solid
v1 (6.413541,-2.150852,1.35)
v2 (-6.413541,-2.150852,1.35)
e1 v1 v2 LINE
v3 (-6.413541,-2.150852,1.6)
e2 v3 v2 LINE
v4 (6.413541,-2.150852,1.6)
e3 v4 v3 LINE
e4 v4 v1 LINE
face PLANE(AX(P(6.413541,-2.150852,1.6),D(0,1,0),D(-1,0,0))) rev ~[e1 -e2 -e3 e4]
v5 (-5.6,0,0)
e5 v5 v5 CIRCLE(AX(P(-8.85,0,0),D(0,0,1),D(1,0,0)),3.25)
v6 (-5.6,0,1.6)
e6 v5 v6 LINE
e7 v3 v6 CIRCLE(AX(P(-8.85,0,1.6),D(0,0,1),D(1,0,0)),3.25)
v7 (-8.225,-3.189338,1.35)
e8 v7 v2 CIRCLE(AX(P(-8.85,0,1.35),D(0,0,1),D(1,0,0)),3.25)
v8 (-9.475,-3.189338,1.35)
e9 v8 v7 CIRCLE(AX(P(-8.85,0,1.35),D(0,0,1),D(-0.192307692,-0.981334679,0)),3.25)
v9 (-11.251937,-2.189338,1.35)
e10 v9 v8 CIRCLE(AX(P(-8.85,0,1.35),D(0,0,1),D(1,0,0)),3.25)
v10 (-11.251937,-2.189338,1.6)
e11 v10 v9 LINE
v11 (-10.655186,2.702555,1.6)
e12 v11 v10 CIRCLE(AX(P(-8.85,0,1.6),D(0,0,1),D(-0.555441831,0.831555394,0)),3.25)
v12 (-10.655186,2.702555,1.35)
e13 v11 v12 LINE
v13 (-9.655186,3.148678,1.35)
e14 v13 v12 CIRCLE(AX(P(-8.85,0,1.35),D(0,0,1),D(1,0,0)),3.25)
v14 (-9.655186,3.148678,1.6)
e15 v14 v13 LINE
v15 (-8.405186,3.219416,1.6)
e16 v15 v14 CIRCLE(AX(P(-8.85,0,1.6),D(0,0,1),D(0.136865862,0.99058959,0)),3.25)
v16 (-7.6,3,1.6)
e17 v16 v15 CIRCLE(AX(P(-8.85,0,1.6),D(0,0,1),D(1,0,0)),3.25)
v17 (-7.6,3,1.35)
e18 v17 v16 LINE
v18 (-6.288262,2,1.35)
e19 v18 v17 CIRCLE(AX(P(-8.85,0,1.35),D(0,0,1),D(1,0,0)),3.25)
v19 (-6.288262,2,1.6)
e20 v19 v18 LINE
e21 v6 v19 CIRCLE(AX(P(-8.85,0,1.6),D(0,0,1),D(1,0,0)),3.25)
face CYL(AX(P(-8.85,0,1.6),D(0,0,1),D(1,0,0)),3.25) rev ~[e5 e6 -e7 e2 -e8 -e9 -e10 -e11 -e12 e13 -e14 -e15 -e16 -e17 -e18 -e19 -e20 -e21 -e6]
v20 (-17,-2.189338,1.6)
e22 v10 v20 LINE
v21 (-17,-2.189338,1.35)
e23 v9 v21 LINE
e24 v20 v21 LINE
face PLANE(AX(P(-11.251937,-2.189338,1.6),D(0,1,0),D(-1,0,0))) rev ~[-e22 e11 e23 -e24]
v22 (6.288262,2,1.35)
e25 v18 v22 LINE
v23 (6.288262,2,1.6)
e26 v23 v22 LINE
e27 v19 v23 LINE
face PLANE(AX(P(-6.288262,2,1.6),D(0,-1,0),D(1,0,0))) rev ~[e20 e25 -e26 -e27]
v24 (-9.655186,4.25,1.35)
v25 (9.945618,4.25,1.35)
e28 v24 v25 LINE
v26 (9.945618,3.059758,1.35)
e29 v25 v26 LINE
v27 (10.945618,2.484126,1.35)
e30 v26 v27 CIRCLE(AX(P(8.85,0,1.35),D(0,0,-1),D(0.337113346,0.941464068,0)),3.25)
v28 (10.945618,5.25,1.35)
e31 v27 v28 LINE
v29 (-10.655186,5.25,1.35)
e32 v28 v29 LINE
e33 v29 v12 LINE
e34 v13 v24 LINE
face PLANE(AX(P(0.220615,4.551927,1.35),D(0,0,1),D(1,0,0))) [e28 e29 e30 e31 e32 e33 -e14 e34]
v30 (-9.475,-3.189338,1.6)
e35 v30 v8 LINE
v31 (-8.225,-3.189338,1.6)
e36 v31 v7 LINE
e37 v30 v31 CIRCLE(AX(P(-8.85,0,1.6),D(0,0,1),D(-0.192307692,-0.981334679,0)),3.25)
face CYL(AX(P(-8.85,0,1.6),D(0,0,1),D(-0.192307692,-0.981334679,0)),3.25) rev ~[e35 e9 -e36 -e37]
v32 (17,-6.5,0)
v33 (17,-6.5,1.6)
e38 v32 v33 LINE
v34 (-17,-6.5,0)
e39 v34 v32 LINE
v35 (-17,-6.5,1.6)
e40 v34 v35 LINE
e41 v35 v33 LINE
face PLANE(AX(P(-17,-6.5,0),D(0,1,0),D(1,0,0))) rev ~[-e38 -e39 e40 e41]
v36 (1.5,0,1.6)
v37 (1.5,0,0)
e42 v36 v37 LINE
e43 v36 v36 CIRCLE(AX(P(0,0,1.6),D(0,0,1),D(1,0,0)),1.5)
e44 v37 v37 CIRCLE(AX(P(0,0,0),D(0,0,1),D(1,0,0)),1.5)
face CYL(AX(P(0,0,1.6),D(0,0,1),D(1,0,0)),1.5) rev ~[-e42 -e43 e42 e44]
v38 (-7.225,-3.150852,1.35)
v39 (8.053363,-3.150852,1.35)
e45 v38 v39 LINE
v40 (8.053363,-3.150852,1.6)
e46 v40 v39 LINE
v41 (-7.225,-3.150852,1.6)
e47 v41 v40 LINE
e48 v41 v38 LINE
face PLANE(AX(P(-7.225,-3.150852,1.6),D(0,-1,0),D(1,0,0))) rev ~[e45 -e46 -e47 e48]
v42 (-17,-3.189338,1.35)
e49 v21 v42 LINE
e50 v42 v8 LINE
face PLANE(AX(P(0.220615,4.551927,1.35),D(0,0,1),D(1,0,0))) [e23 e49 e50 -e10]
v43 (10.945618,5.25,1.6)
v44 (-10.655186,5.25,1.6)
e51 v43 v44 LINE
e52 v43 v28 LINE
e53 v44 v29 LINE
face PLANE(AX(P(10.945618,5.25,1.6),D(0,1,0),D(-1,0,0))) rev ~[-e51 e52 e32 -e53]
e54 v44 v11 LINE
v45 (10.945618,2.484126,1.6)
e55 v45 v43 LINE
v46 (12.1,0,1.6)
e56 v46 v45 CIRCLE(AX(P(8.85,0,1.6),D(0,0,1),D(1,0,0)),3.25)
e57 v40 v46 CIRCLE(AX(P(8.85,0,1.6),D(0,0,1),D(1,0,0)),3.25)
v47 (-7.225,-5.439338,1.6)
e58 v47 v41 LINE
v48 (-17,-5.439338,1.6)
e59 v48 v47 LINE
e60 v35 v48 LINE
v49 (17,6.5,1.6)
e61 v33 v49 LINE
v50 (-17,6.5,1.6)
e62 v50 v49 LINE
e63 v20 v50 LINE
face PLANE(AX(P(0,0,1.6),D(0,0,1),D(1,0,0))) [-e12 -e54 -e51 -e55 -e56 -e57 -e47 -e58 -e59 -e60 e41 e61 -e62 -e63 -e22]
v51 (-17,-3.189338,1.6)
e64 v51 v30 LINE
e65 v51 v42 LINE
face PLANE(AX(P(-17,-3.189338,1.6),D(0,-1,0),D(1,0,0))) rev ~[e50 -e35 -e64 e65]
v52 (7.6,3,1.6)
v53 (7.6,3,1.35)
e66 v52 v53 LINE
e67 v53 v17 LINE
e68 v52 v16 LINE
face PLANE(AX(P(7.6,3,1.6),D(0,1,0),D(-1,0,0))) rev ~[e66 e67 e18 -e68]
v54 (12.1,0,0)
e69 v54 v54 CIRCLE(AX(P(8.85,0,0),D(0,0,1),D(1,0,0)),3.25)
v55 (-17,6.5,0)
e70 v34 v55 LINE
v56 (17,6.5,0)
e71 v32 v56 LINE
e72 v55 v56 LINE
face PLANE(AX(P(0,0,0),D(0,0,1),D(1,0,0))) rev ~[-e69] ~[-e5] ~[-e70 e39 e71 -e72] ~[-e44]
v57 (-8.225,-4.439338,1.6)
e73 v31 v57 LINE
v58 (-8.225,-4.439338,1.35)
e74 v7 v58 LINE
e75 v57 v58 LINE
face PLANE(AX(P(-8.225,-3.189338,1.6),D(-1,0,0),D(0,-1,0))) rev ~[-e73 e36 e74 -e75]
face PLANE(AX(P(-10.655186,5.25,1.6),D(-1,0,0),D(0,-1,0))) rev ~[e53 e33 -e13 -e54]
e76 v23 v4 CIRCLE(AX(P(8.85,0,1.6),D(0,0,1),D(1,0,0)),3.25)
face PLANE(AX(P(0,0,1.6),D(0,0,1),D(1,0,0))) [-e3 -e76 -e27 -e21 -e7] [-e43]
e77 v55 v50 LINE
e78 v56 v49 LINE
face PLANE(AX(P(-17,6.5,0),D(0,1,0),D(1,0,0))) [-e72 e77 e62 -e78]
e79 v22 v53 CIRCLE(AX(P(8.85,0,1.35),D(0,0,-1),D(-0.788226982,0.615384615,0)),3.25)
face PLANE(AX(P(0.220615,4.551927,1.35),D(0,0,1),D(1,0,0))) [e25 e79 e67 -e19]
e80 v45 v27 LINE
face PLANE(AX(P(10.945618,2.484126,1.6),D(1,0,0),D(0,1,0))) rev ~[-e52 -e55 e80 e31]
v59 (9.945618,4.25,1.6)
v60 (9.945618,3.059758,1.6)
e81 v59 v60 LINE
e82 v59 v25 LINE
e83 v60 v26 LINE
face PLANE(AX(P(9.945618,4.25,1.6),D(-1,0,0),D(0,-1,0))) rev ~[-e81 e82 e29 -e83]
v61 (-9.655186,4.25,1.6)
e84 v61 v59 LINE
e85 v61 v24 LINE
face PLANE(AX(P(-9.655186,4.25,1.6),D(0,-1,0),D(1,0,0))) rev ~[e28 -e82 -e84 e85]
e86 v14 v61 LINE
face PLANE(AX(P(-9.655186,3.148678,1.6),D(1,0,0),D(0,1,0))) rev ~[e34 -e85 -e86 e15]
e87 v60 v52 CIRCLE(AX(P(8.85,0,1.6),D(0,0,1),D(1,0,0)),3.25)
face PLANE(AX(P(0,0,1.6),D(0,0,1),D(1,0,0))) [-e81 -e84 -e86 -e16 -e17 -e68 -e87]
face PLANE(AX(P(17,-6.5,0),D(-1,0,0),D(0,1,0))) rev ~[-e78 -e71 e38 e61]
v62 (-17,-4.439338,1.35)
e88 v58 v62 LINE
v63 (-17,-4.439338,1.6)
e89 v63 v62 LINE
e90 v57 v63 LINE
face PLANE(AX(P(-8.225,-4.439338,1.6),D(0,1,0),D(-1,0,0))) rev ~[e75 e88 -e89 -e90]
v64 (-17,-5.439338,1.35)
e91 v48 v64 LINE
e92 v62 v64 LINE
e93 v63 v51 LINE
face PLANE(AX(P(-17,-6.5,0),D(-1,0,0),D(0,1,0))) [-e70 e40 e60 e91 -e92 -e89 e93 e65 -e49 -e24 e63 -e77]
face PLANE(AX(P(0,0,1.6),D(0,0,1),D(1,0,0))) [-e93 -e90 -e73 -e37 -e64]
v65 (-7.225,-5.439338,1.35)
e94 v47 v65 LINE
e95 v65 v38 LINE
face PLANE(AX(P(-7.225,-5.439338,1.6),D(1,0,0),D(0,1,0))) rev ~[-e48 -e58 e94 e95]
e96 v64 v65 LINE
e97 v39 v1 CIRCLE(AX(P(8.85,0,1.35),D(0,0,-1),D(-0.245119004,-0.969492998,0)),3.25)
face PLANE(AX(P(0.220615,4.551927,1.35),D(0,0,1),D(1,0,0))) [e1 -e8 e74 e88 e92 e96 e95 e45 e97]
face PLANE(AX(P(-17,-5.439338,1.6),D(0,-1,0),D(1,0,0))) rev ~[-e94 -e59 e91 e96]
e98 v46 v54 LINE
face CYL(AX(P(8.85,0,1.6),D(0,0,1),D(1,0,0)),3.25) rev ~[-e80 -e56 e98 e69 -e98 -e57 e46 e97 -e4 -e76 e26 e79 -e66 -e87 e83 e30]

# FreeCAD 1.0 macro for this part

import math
import FreeCAD as App
import Part
import Sketcher
from FreeCAD import Vector
Q = App.Units.Quantity


def add_polygon(sketch, points):
    """Adds a closed chain of lines whose ends are joined by coincident constraints."""
    first, n = sketch.GeometryCount, len(points)
    for a, b in zip(points, points[1:] + points[:1]):
        sketch.addGeometry(Part.LineSegment(App.Vector(*a, 0), App.Vector(*b, 0)), False)
    for i in range(n):
        sketch.addConstraint(Sketcher.Constraint("Coincident", first + i, 2, first + (i + 1) % n, 1))

doc = App.newDocument("Part")
body = doc.addObject("PartDesign::Body", "Body")

sketch1 = doc.addObject("Sketcher::SketchObject", "Sketch")
body.addObject(sketch1)
sketch1.AttachmentSupport = (doc.XY_Plane, [""])
sketch1.MapMode = "FlatFace"
add_polygon(sketch1, [(-17, 6), (-17, -6), (17, -6), (17, 6)])
sketch1.addConstraint(Sketcher.Constraint("Vertical", 0))
sketch1.addConstraint(Sketcher.Constraint("Horizontal", 1))
sketch1.addConstraint(Sketcher.Constraint("Vertical", 2))
sketch1.addConstraint(Sketcher.Constraint("Horizontal", 3))
sketch1.addConstraint(Sketcher.Constraint("Symmetric", 0, 2, 2, 2, -1, 1))
sketch1.addConstraint(Sketcher.Constraint("DistanceX", 1, 1, 1, 2, Q("34 mm")))
sketch1.addConstraint(Sketcher.Constraint("DistanceY", 0, 2, 0, 1, Q("13 mm")))
pad1 = doc.addObject("PartDesign::Pad", "Pad")
body.addObject(pad1)
pad1.Profile = sketch1
pad1.Length = 1.6

sketch2 = doc.addObject("Sketcher::SketchObject", "Sketch001")
body.addObject(sketch2)
sketch2.AttachmentSupport = (doc.XY_Plane, [""])
sketch2.MapMode = "FlatFace"
sketch2.AttachmentOffset = App.Placement(Vector(0, 0, 1.6), App.Rotation())
sketch2.addGeometry(Part.Circle(Vector(-8.8, 0, 0), Vector(0, 0, 1), 3.2), False)
sketch2.addGeometry(Part.Circle(Vector(8.8, 0, 0), Vector(0, 0, 1), 3.2), False)
sketch2.addConstraint(Sketcher.Constraint("Equal", 0, 1))
sketch2.addConstraint(Sketcher.Constraint("Symmetric", 0, 3, 1, 3, -1, 1))
sketch2.addConstraint(Sketcher.Constraint("PointOnObject", 0, 3, -1))
sketch2.addConstraint(Sketcher.Constraint("Diameter", 0, Q("6.5 mm")))
sketch2.addConstraint(Sketcher.Constraint("DistanceX", 0, 3, 1, 3, Q("17.7 mm")))
pocket1 = doc.addObject("PartDesign::Pocket", "Pocket")
body.addObject(pocket1)
pocket1.Profile = sketch2
pocket1.Type = "ThroughAll"

sketch3 = doc.addObject("Sketcher::SketchObject", "Sketch002")
body.addObject(sketch3)
sketch3.AttachmentSupport = (doc.XY_Plane, [""])
sketch3.MapMode = "FlatFace"
sketch3.AttachmentOffset = App.Placement(Vector(0, 0, 1.6), App.Rotation())
sketch3.addGeometry(Part.Circle(Vector(0, 0, 0), Vector(0, 0, 1), 1.5), False)
sketch3.addConstraint(Sketcher.Constraint("Coincident", 0, 3, -1, 1))
sketch3.addConstraint(Sketcher.Constraint("Diameter", 0, Q("3 mm")))
pocket2 = doc.addObject("PartDesign::Pocket", "Pocket001")
body.addObject(pocket2)
pocket2.Profile = sketch3
pocket2.Type = "ThroughAll"

sketch4 = doc.addObject("Sketcher::SketchObject", "Sketch003")
body.addObject(sketch4)
sketch4.AttachmentSupport = (doc.XY_Plane, [""])
sketch4.MapMode = "FlatFace"
sketch4.AttachmentOffset = App.Placement(Vector(0, 0, 1.6), App.Rotation())
sketch4.addGeometry(Part.LineSegment(Vector(-9.66, 3.15, 0), Vector(-9.66, 4.25, 0)), False)
sketch4.addGeometry(Part.LineSegment(Vector(-9.66, 4.25, 0), Vector(9.95, 4.25, 0)), False)
sketch4.addGeometry(Part.LineSegment(Vector(9.95, 4.25, 0), Vector(9.95, 3.06, 0)), False)
sketch4.addGeometry(Part.ArcOfCircle(Part.Circle(Vector(8.85, 0, 0), Vector(0, 0, 1), 3.25), math.radians(50), math.radians(70)), False)
sketch4.addGeometry(Part.LineSegment(Vector(10.95, 2.48, 0), Vector(10.95, 5.25, 0)), False)
sketch4.addGeometry(Part.LineSegment(Vector(10.95, 5.25, 0), Vector(-10.66, 5.25, 0)), False)
sketch4.addGeometry(Part.LineSegment(Vector(-10.66, 5.25, 0), Vector(-10.66, 2.7, 0)), False)
sketch4.addGeometry(Part.ArcOfCircle(Part.Circle(Vector(-8.85, 0, 0), Vector(0, 0, 1), 3.25), math.radians(124), math.radians(222)), False)
sketch4.addGeometry(Part.LineSegment(Vector(-11.25, -2.19, 0), Vector(-17, -2.19, 0)), False)
sketch4.addGeometry(Part.LineSegment(Vector(-17, -2.19, 0), Vector(-17, -3.19, 0)), False)
sketch4.addGeometry(Part.LineSegment(Vector(-17, -3.19, 0), Vector(-9.47, -3.19, 0)), False)
sketch4.addGeometry(Part.ArcOfCircle(Part.Circle(Vector(-8.85, 0, 0), Vector(0, 0, 1), 3.25), math.radians(-101), math.radians(-79)), False)
sketch4.addGeometry(Part.LineSegment(Vector(-8.22, -3.19, 0), Vector(-8.22, -4.44, 0)), False)
sketch4.addGeometry(Part.LineSegment(Vector(-8.22, -4.44, 0), Vector(-17, -4.44, 0)), False)
sketch4.addGeometry(Part.LineSegment(Vector(-17, -4.44, 0), Vector(-17, -5.44, 0)), False)
sketch4.addGeometry(Part.LineSegment(Vector(-17, -5.44, 0), Vector(-7.22, -5.44, 0)), False)
sketch4.addGeometry(Part.LineSegment(Vector(-7.22, -5.44, 0), Vector(-7.22, -3.15, 0)), False)
sketch4.addGeometry(Part.LineSegment(Vector(-7.22, -3.15, 0), Vector(8.05, -3.15, 0)), False)
sketch4.addGeometry(Part.ArcOfCircle(Part.Circle(Vector(8.85, 0, 0), Vector(0, 0, 1), 3.25), math.radians(-139), math.radians(-104)), False)
sketch4.addGeometry(Part.LineSegment(Vector(6.41, -2.15, 0), Vector(-6.41, -2.15, 0)), False)
sketch4.addGeometry(Part.ArcOfCircle(Part.Circle(Vector(-8.85, 0, 0), Vector(0, 0, 1), 3.25), math.radians(-41), math.radians(0)), False)
sketch4.addGeometry(Part.ArcOfCircle(Part.Circle(Vector(-8.85, 0, 0), Vector(0, 0, 1), 3.25), math.radians(0), math.radians(38)), False)
sketch4.addGeometry(Part.LineSegment(Vector(-6.29, 2, 0), Vector(6.29, 2, 0)), False)
sketch4.addGeometry(Part.ArcOfCircle(Part.Circle(Vector(8.85, 0, 0), Vector(0, 0, 1), 3.25), math.radians(113), math.radians(142)), False)
sketch4.addGeometry(Part.LineSegment(Vector(7.6, 3, 0), Vector(-8.41, 3, 0)), False)
sketch4.addGeometry(Part.LineSegment(Vector(-8.41, 3, 0), Vector(-8.41, 3.22, 0)), False)
sketch4.addGeometry(Part.ArcOfCircle(Part.Circle(Vector(-8.85, 0, 0), Vector(0, 0, 1), 3.25), math.radians(82), math.radians(104)), False)
sketch4.addConstraint(Sketcher.Constraint("Coincident", 0, 2, 1, 1))
sketch4.addConstraint(Sketcher.Constraint("Coincident", 1, 2, 2, 1))
sketch4.addConstraint(Sketcher.Constraint("Coincident", 2, 2, 3, 2))
sketch4.addConstraint(Sketcher.Constraint("Coincident", 3, 1, 4, 1))
sketch4.addConstraint(Sketcher.Constraint("Coincident", 4, 2, 5, 1))
sketch4.addConstraint(Sketcher.Constraint("Coincident", 5, 2, 6, 1))
sketch4.addConstraint(Sketcher.Constraint("Coincident", 6, 2, 7, 1))
sketch4.addConstraint(Sketcher.Constraint("Coincident", 7, 2, 8, 1))
sketch4.addConstraint(Sketcher.Constraint("Coincident", 8, 2, 9, 1))
sketch4.addConstraint(Sketcher.Constraint("Coincident", 9, 2, 10, 1))
sketch4.addConstraint(Sketcher.Constraint("Coincident", 10, 2, 11, 1))
sketch4.addConstraint(Sketcher.Constraint("Coincident", 11, 2, 12, 1))
sketch4.addConstraint(Sketcher.Constraint("Coincident", 12, 2, 13, 1))
sketch4.addConstraint(Sketcher.Constraint("Coincident", 13, 2, 14, 1))
sketch4.addConstraint(Sketcher.Constraint("Coincident", 14, 2, 15, 1))
sketch4.addConstraint(Sketcher.Constraint("Coincident", 15, 2, 16, 1))
sketch4.addConstraint(Sketcher.Constraint("Coincident", 16, 2, 17, 1))
sketch4.addConstraint(Sketcher.Constraint("Coincident", 17, 2, 18, 2))
sketch4.addConstraint(Sketcher.Constraint("Coincident", 18, 1, 19, 1))
sketch4.addConstraint(Sketcher.Constraint("Coincident", 19, 2, 20, 1))
sketch4.addConstraint(Sketcher.Constraint("Tangent", 20, 2, 21, 1))
sketch4.addConstraint(Sketcher.Constraint("Coincident", 21, 2, 22, 1))
sketch4.addConstraint(Sketcher.Constraint("Coincident", 22, 2, 23, 2))
sketch4.addConstraint(Sketcher.Constraint("Coincident", 23, 1, 24, 1))
sketch4.addConstraint(Sketcher.Constraint("Coincident", 24, 2, 25, 1))
sketch4.addConstraint(Sketcher.Constraint("Coincident", 25, 2, 26, 1))
sketch4.addConstraint(Sketcher.Constraint("Coincident", 26, 2, 0, 1))
sketch4.addConstraint(Sketcher.Constraint("Vertical", 0))
sketch4.addConstraint(Sketcher.Constraint("Horizontal", 1))
sketch4.addConstraint(Sketcher.Constraint("Vertical", 2))
sketch4.addConstraint(Sketcher.Constraint("Vertical", 4))
sketch4.addConstraint(Sketcher.Constraint("Horizontal", 5))
sketch4.addConstraint(Sketcher.Constraint("Vertical", 6))
sketch4.addConstraint(Sketcher.Constraint("Horizontal", 8))
sketch4.addConstraint(Sketcher.Constraint("Vertical", 9))
sketch4.addConstraint(Sketcher.Constraint("Horizontal", 10))
sketch4.addConstraint(Sketcher.Constraint("Vertical", 12))
sketch4.addConstraint(Sketcher.Constraint("Horizontal", 13))
sketch4.addConstraint(Sketcher.Constraint("Vertical", 14))
sketch4.addConstraint(Sketcher.Constraint("Horizontal", 15))
sketch4.addConstraint(Sketcher.Constraint("Vertical", 16))
sketch4.addConstraint(Sketcher.Constraint("Horizontal", 17))
sketch4.addConstraint(Sketcher.Constraint("Horizontal", 19))
sketch4.addConstraint(Sketcher.Constraint("Horizontal", 22))
sketch4.addConstraint(Sketcher.Constraint("Horizontal", 24))
sketch4.addConstraint(Sketcher.Constraint("Vertical", 25))
sketch4.addConstraint(Sketcher.Constraint("Coincident", 11, 3, 7, 3))
sketch4.addConstraint(Sketcher.Constraint("Coincident", 18, 3, 3, 3))
sketch4.addConstraint(Sketcher.Constraint("Coincident", 20, 3, 7, 3))
sketch4.addConstraint(Sketcher.Constraint("Coincident", 23, 3, 3, 3))
sketch4.addConstraint(Sketcher.Constraint("Coincident", 26, 3, 7, 3))
sketch4.addConstraint(Sketcher.Constraint("Equal", 3, 7))
sketch4.addConstraint(Sketcher.Constraint("Equal", 7, 11))
sketch4.addConstraint(Sketcher.Constraint("Equal", 11, 18))
sketch4.addConstraint(Sketcher.Constraint("Equal", 18, 20))
sketch4.addConstraint(Sketcher.Constraint("Equal", 20, 21))
sketch4.addConstraint(Sketcher.Constraint("Equal", 21, 23))
sketch4.addConstraint(Sketcher.Constraint("Equal", 23, 26))
sketch4.addConstraint(Sketcher.Constraint("Symmetric", 3, 3, 7, 3, -1, 1))
sketch4.addConstraint(Sketcher.Constraint("PointOnObject", 3, 3, -1))
sketch4.addConstraint(Sketcher.Constraint("PointOnObject", 20, 2, -1))
sketch4.addConstraint(Sketcher.Constraint("Horizontal", 10, 2, 11, 2))
sketch4.addConstraint(Sketcher.Constraint("Vertical", 9, 2, 13, 2))
sketch4.addConstraint(Sketcher.Constraint("Equal", 9, 14))
sketch4.addConstraint(Sketcher.Constraint("DistanceY", 9, 2, 9, 1, Q("1 mm")))
sketch4.addConstraint(Sketcher.Constraint("Radius", 3, Q("3.25 mm")))
sketch4.addConstraint(Sketcher.Constraint("DistanceX", 8, 2, -1, 1, Q("17 mm")))
sketch4.addConstraint(Sketcher.Constraint("DistanceY", -1, 1, 21, 2, Q("2 mm")))
sketch4.addConstraint(Sketcher.Constraint("DistanceY", -1, 1, 23, 1, Q("3 mm")))
sketch4.addConstraint(Sketcher.Constraint("DistanceX", 2, 2, 3, 1, Q("1 mm")))
sketch4.addConstraint(Sketcher.Constraint("DistanceY", 1, 2, 4, 2, Q("1 mm")))
sketch4.addConstraint(Sketcher.Constraint("DistanceX", 5, 2, 0, 2, Q("1 mm")))
sketch4.addConstraint(Sketcher.Constraint("DistanceX", 12, 2, 15, 2, Q("1 mm")))
sketch4.addConstraint(Sketcher.Constraint("DistanceY", 17, 2, 18, 1, Q("1 mm")))
sketch4.addConstraint(Sketcher.Constraint("DistanceY", 12, 2, 12, 1, Q("1.25 mm")))
sketch4.addConstraint(Sketcher.Constraint("DistanceX", 20, 2, -1, 1, Q("5.6 mm")))
sketch4.addConstraint(Sketcher.Constraint("DistanceX", 10, 1, 10, 2, Q("7.525 mm")))
sketch4.addConstraint(Sketcher.Constraint("DistanceY", -1, 1, 0, 2, Q("4.25 mm")))
sketch4.addConstraint(Sketcher.Constraint("DistanceX", 0, 2, 24, 2, Q("1.25 mm")))
sketch4.addConstraint(Sketcher.Constraint("DistanceX", 19, 2, 19, 1, Q("12.827081 mm")))
sketch4.addConstraint(Sketcher.Constraint("DistanceY", 0, 1, 0, 2, Q("1.101322 mm")))
sketch4.addConstraint(Sketcher.Constraint("DistanceY", 2, 2, 2, 1, Q("1.190242 mm")))
pocket3 = doc.addObject("PartDesign::Pocket", "Pocket002")
body.addObject(pocket3)
pocket3.Profile = sketch4
pocket3.Length = 0.25

doc.recompute()
